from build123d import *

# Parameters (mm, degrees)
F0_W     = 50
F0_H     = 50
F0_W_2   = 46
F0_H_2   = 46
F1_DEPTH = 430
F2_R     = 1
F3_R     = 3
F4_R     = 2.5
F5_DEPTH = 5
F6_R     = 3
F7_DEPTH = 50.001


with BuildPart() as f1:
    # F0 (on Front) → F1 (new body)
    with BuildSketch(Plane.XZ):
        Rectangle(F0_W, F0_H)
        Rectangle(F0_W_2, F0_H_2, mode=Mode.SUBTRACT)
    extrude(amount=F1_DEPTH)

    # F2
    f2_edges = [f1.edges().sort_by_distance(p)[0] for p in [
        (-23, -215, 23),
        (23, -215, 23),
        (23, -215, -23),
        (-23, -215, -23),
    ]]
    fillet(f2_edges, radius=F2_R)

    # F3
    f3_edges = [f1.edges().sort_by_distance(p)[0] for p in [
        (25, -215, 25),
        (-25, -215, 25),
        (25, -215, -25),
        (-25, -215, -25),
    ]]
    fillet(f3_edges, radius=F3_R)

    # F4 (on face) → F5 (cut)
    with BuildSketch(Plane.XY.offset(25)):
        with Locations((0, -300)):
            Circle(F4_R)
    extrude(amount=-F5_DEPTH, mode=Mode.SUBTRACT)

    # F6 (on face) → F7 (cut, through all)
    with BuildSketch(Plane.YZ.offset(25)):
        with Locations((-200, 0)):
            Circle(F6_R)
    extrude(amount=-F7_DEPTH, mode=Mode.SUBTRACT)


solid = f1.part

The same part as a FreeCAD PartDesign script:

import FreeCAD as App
import Part
import Sketcher

V = App.Vector


def edges_at(feature, points):
    """Names of the edges that pass closest to the given points."""
    edges = feature.Shape.Edges
    near = lambda p: min(range(len(edges)), key=lambda i: edges[i].distToShape(Part.Vertex(*p))[0])
    return sorted({f"Edge{near(p) + 1}" for p in points})


def add_polygon(sketch, points):
    """Adds a closed chain of lines whose ends are joined by coincident constraints."""
    first, n = sketch.GeometryCount, len(points)
    for a, b in zip(points, points[1:] + points[:1]):
        sketch.addGeometry(Part.LineSegment(App.Vector(*a, 0), App.Vector(*b, 0)), False)
    for i in range(n):
        sketch.addConstraint(Sketcher.Constraint("Coincident", first + i, 2, first + (i + 1) % n, 1))

doc = App.newDocument("Part")
params = doc.addObject("Spreadsheet::Sheet", "Params")
for row, (alias, value) in enumerate([
    ("sketch1_width", "50 mm"),
    ("sketch1_width2", "46 mm"),
    ("pad1_length", "430 mm"),
    ("fillet_radius", "1 mm"),
    ("fillet2_radius", "3 mm"),
    ("sketch2_diameter", "5 mm"),
    ("pocket1_length", "5 mm"),
    ("sketch3_diameter", "6 mm"),
], start=1):
    params.set(f"A{row}", alias)
    params.set(f"B{row}", "=" + value)
    params.setAlias(f"B{row}", alias)

body = doc.addObject("PartDesign::Body", "Body")

# Sketch on XZ plane
sketch1 = body.newObject("Sketcher::SketchObject", "Sketch")
sketch1.AttachmentSupport = (doc.getObject("XZ_Plane"), [""])
sketch1.MapMode = "FlatFace"
add_polygon(sketch1, [(-25, 25), (-25, -25), (25, -25), (25, 25)])  # lines 0-3
add_polygon(sketch1, [(23, -23), (-23, -23), (-23, 23), (23, 23)])  # lines 4-7
sketch1.addConstraint([
    Sketcher.Constraint("Vertical", 0),
    Sketcher.Constraint("Horizontal", 1),
    Sketcher.Constraint("Vertical", 2),
    Sketcher.Constraint("Horizontal", 3),
    Sketcher.Constraint("Horizontal", 4),
    Sketcher.Constraint("Vertical", 5),
    Sketcher.Constraint("Horizontal", 6),
    Sketcher.Constraint("Vertical", 7),
    Sketcher.Constraint("Symmetric", 0, 2, 2, 2, -1, 1),
    Sketcher.Constraint("Symmetric", 4, 2, 6, 2, -1, 1),
    Sketcher.Constraint("Equal", 3, 0),
    Sketcher.Constraint("Equal", 6, 5),
    Sketcher.Constraint("DistanceX", 1, 1, 1, 2, 50.0),
    Sketcher.Constraint("DistanceX", 4, 2, 4, 1, 46.0),
])
sketch1.setExpression("Constraints[20]", "Params.sketch1_width")
sketch1.setExpression("Constraints[21]", "Params.sketch1_width2")
pad1 = body.newObject("PartDesign::Pad", "Pad")
pad1.Profile = sketch1
pad1.setExpression("Length", "Params.pad1_length")
doc.recompute()

fillet = body.newObject("PartDesign::Fillet", "Fillet")
fillet.Base = (pad1, edges_at(pad1, [
    (-23, -215, 23),
    (23, -215, 23),
    (23, -215, -23),
    (-23, -215, -23),
]))
fillet.setExpression("Radius", "Params.fillet_radius")
doc.recompute()

fillet2 = body.newObject("PartDesign::Fillet", "Fillet001")
fillet2.Base = (fillet, edges_at(fillet, [
    (25, -215, 25),
    (-25, -215, 25),
    (25, -215, -25),
    (-25, -215, -25),
]))
fillet2.setExpression("Radius", "Params.fillet2_radius")

# Sketch on XY plane
sketch2 = body.newObject("Sketcher::SketchObject", "Sketch001")
sketch2.AttachmentSupport = (doc.getObject("XY_Plane"), [""])
sketch2.MapMode = "FlatFace"
sketch2.AttachmentOffset = App.Placement(V(0, 0, 25), App.Rotation())
sketch2.addGeometry(Part.Circle(V(0, -300, 0), V(0, 0, 1), 2.5), False)
sketch2.addConstraint([
    Sketcher.Constraint("PointOnObject", 0, 3, -2),
    Sketcher.Constraint("Diameter", 0, 5.0),
    Sketcher.Constraint("DistanceY", 0, 3, -1, 1, 300.0),
])
sketch2.setExpression("Constraints[1]", "Params.sketch2_diameter")
pocket1 = body.newObject("PartDesign::Pocket", "Pocket")
pocket1.Profile = sketch2
pocket1.setExpression("Length", "Params.pocket1_length")

# Sketch on YZ plane
sketch3 = body.newObject("Sketcher::SketchObject", "Sketch002")
sketch3.AttachmentSupport = (doc.getObject("YZ_Plane"), [""])
sketch3.MapMode = "FlatFace"
sketch3.AttachmentOffset = App.Placement(V(0, 0, 25), App.Rotation())
sketch3.addGeometry(Part.Circle(V(-200, 0, 0), V(0, 0, 1), 3), False)
sketch3.addConstraint([
    Sketcher.Constraint("PointOnObject", 0, 3, -1),
    Sketcher.Constraint("Diameter", 0, 6.0),
    Sketcher.Constraint("DistanceX", 0, 3, -1, 1, 200.0),
])
sketch3.setExpression("Constraints[1]", "Params.sketch3_diameter")
pocket2 = body.newObject("PartDesign::Pocket", "Pocket001")
pocket2.Profile = sketch3
pocket2.Type = "ThroughAll"

doc.recompute()
